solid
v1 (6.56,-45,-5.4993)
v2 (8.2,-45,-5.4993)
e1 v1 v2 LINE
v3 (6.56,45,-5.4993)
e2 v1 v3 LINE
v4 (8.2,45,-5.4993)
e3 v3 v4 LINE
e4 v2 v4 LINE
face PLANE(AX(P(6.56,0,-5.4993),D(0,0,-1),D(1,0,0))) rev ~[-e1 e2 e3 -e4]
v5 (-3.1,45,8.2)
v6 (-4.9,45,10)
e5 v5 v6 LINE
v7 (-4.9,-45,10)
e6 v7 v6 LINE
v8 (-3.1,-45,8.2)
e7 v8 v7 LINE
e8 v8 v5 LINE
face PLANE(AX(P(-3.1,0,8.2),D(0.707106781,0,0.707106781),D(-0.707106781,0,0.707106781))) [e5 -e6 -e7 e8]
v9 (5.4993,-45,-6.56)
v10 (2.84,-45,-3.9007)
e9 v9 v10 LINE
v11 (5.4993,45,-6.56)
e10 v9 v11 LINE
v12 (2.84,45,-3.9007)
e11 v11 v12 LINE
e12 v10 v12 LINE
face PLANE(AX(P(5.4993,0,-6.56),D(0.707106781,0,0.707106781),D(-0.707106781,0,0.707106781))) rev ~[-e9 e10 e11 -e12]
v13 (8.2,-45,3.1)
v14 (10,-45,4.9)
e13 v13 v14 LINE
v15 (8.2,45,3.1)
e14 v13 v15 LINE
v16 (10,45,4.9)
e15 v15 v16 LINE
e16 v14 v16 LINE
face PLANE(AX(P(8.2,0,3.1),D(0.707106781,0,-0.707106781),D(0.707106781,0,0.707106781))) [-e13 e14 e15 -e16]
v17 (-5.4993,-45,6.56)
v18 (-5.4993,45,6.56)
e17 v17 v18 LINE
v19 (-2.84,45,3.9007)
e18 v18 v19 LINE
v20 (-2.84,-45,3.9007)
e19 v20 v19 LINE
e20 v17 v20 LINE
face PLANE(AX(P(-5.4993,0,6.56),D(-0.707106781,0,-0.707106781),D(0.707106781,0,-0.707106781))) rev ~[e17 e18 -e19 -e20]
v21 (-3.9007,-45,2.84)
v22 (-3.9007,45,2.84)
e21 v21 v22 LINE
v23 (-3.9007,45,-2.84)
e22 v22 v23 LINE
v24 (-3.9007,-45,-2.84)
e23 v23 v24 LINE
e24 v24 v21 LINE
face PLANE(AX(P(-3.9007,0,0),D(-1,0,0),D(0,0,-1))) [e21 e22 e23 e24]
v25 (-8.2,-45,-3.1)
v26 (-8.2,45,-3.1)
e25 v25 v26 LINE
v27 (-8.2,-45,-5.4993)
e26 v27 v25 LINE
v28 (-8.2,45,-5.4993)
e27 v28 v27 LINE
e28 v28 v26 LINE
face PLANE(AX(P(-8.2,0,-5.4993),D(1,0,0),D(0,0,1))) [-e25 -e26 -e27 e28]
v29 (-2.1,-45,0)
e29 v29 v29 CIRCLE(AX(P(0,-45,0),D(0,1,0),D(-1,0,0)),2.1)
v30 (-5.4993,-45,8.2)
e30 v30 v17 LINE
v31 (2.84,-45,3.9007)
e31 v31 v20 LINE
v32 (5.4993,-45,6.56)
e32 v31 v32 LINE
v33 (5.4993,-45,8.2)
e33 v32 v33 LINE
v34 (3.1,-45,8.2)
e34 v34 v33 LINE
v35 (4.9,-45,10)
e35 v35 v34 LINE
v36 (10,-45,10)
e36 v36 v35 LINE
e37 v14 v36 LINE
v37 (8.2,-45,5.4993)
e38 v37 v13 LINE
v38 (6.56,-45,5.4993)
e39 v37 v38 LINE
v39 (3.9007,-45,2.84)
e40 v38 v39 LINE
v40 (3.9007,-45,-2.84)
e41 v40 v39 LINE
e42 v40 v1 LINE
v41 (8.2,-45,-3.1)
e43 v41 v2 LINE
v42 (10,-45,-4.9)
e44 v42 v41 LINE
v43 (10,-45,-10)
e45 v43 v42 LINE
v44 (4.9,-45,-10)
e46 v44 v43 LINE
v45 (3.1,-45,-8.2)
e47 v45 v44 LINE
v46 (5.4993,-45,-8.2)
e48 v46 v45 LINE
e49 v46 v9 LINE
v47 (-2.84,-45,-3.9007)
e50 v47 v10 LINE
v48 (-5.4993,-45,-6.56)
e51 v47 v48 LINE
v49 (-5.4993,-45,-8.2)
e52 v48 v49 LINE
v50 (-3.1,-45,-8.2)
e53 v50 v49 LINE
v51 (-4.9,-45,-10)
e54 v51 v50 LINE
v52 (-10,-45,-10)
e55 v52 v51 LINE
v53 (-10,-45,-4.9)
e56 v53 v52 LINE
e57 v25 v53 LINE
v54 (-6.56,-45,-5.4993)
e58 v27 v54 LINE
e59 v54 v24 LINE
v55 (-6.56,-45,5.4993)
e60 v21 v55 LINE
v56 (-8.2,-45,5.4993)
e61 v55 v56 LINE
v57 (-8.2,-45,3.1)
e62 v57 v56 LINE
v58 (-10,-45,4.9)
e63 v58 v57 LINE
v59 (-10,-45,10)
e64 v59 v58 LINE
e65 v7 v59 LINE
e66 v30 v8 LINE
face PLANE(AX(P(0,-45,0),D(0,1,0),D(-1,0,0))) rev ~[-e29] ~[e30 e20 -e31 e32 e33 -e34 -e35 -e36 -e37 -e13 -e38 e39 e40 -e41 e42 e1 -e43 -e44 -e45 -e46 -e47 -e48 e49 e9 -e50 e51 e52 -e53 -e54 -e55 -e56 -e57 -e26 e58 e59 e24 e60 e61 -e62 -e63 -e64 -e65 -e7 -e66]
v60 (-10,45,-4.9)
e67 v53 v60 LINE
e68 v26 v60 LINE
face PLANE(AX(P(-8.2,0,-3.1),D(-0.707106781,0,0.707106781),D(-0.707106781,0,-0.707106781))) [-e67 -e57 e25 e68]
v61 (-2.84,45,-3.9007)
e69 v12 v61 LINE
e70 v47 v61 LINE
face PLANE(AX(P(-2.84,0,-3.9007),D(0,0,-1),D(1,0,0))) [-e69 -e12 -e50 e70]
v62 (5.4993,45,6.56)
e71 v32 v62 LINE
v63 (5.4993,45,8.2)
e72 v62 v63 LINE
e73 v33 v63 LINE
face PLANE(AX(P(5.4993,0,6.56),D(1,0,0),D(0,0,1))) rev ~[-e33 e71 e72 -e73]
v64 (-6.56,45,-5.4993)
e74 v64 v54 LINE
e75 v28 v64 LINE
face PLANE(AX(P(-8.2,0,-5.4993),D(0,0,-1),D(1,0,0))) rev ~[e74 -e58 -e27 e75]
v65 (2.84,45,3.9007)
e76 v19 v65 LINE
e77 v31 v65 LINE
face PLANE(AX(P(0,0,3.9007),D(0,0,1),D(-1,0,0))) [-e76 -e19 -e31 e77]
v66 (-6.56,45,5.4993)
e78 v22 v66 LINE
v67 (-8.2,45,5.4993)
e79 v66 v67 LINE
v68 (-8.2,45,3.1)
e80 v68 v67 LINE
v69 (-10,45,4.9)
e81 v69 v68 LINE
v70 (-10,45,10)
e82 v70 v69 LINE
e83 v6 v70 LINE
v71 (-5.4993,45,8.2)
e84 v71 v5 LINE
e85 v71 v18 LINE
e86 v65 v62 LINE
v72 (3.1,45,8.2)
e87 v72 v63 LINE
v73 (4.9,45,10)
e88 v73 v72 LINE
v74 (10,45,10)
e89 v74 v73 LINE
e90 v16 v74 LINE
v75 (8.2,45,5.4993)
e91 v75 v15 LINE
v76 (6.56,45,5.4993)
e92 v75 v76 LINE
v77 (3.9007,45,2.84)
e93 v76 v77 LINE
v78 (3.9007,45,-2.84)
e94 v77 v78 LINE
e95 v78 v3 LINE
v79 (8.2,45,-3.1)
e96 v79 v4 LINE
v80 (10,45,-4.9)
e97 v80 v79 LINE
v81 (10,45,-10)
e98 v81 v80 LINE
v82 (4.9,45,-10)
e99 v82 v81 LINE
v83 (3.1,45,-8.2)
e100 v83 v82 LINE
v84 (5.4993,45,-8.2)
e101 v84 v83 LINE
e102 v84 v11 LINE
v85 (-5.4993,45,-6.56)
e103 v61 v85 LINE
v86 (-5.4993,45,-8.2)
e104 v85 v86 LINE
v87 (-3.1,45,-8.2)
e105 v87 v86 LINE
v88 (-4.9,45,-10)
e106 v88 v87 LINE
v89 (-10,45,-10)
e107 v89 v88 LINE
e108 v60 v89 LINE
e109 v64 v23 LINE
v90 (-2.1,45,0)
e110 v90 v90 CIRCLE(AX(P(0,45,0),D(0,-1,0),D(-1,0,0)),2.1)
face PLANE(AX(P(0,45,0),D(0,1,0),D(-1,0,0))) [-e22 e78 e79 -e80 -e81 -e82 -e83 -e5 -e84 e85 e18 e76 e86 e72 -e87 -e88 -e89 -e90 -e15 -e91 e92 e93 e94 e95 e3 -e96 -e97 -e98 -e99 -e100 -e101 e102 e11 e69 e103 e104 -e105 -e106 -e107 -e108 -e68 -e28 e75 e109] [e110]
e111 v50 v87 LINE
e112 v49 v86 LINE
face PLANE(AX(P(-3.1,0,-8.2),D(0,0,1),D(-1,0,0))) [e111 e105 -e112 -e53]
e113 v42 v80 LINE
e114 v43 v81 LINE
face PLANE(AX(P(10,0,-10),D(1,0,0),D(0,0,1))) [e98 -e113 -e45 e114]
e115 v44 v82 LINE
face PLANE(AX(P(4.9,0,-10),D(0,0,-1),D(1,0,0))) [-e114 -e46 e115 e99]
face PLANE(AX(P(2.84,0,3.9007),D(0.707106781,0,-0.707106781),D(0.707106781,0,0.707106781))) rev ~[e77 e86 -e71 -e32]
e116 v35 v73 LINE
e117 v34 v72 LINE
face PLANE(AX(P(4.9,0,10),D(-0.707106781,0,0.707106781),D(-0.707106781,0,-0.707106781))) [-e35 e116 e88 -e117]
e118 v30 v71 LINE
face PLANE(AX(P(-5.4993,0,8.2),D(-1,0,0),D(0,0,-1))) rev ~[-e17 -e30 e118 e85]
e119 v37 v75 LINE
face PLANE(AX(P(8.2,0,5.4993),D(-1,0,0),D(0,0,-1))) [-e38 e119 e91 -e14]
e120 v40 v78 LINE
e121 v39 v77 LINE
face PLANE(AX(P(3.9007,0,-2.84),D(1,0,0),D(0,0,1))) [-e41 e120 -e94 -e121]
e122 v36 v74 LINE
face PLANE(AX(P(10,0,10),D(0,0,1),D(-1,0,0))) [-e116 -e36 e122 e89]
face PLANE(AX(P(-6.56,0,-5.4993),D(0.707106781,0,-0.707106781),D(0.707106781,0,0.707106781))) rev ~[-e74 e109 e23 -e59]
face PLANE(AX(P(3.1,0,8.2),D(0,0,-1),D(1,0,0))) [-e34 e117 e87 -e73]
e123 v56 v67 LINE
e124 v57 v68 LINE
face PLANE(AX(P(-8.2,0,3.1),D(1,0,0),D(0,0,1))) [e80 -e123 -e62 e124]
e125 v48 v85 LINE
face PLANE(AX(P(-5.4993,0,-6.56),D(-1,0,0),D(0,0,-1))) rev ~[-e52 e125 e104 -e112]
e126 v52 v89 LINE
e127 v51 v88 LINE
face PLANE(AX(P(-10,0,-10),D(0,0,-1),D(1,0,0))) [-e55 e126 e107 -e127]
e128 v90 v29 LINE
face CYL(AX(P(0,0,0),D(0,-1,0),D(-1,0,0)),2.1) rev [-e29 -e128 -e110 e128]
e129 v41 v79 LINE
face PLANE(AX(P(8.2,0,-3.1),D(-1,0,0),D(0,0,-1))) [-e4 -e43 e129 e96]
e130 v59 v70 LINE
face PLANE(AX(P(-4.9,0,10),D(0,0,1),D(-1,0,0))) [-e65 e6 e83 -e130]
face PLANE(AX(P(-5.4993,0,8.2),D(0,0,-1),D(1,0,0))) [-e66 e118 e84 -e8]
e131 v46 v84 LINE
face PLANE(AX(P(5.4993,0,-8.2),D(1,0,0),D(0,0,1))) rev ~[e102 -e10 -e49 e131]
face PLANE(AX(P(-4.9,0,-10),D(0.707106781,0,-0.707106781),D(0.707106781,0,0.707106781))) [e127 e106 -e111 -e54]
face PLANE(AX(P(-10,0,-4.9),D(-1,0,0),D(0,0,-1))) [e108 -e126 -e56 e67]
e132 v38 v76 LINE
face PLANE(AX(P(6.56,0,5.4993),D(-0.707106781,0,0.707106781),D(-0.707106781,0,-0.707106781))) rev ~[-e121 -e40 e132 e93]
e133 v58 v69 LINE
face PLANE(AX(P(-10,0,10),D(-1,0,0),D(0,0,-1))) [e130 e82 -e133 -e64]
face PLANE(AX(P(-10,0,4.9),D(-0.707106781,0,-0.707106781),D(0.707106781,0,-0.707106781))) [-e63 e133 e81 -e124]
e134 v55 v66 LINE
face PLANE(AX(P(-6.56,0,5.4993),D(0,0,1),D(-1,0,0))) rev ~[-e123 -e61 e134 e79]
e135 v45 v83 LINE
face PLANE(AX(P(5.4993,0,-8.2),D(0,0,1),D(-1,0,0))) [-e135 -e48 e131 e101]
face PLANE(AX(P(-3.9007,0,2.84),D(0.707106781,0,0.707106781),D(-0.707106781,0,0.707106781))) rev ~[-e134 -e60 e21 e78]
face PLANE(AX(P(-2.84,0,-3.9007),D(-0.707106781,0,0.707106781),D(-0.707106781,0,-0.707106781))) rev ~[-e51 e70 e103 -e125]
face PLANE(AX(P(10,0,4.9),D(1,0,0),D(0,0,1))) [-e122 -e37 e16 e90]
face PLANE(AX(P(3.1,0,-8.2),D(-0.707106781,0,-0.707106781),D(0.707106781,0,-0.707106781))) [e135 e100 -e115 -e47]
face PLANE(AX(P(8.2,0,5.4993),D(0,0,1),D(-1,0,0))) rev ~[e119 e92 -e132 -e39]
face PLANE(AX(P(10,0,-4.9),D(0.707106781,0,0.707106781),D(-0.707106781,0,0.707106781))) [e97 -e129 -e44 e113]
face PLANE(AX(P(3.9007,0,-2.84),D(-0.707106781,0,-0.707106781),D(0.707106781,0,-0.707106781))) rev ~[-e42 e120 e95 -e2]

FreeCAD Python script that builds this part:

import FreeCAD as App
import Part
import Sketcher

V = App.Vector
Q = App.Units.Quantity

doc = App.newDocument("Part")
params = doc.addObject("Spreadsheet::Sheet", "Params")
for row, (alias, value) in enumerate([
    ("sketch1_diameter", "4.2 mm"),
    ("sketch1_width", "1.64 mm"),
    ("pad1_length", "90 mm"),
], start=1):
    params.set(f"A{row}", alias)
    params.set(f"B{row}", "=" + value)
    params.setAlias(f"B{row}", alias)

body = doc.addObject("PartDesign::Body", "Body")

# Sketch on XZ plane
sketch1 = body.newObject("Sketcher::SketchObject", "Sketch")
sketch1.AttachmentSupport = (doc.getObject("XZ_Plane"), [""])
sketch1.MapMode = "FlatFace"
sketch1.addGeometry([
    Part.LineSegment(V(-3.9, -2.8, 0), V(-3.9, 2.8, 0)),  # 0
    Part.LineSegment(V(-3.9, 2.8, 0), V(-6.6, 5.5, 0)),  # 1
    Part.LineSegment(V(-6.6, 5.5, 0), V(-8.2, 5.5, 0)),  # 2
    Part.LineSegment(V(-8.2, 5.5, 0), V(-8.2, 3.1, 0)),  # 3
    Part.LineSegment(V(-8.2, 3.1, 0), V(-10, 4.9, 0)),  # 4
    Part.LineSegment(V(-10, 4.9, 0), V(-10, 10, 0)),  # 5
    Part.LineSegment(V(-10, 10, 0), V(-4.9, 10, 0)),  # 6
    Part.LineSegment(V(-4.9, 10, 0), V(-3.1, 8.2, 0)),  # 7
    Part.LineSegment(V(-3.1, 8.2, 0), V(-5.5, 8.2, 0)),  # 8
    Part.LineSegment(V(-5.5, 8.2, 0), V(-5.5, 6.6, 0)),  # 9
    Part.LineSegment(V(-5.5, 6.6, 0), V(-2.8, 3.9, 0)),  # 10
    Part.LineSegment(V(-2.8, 3.9, 0), V(2.8, 3.9, 0)),  # 11
    Part.LineSegment(V(2.8, 3.9, 0), V(5.5, 6.6, 0)),  # 12
    Part.LineSegment(V(5.5, 6.6, 0), V(5.5, 8.2, 0)),  # 13
    Part.LineSegment(V(5.5, 8.2, 0), V(3.1, 8.2, 0)),  # 14
    Part.LineSegment(V(3.1, 8.2, 0), V(4.9, 10, 0)),  # 15
    Part.LineSegment(V(4.9, 10, 0), V(10, 10, 0)),  # 16
    Part.LineSegment(V(10, 10, 0), V(10, 4.9, 0)),  # 17
    Part.LineSegment(V(10, 4.9, 0), V(8.2, 3.1, 0)),  # 18
    Part.LineSegment(V(8.2, 3.1, 0), V(8.2, 5.5, 0)),  # 19
    Part.LineSegment(V(8.2, 5.5, 0), V(6.6, 5.5, 0)),  # 20
    Part.LineSegment(V(6.6, 5.5, 0), V(3.9, 2.8, 0)),  # 21
    Part.LineSegment(V(3.9, 2.8, 0), V(3.9, -2.8, 0)),  # 22
    Part.LineSegment(V(3.9, -2.8, 0), V(6.6, -5.5, 0)),  # 23
    Part.LineSegment(V(6.6, -5.5, 0), V(8.2, -5.5, 0)),  # 24
    Part.LineSegment(V(8.2, -5.5, 0), V(8.2, -3.1, 0)),  # 25
    Part.LineSegment(V(8.2, -3.1, 0), V(10, -4.9, 0)),  # 26
    Part.LineSegment(V(10, -4.9, 0), V(10, -10, 0)),  # 27
    Part.LineSegment(V(10, -10, 0), V(4.9, -10, 0)),  # 28
    Part.LineSegment(V(4.9, -10, 0), V(3.1, -8.2, 0)),  # 29
    Part.LineSegment(V(3.1, -8.2, 0), V(5.5, -8.2, 0)),  # 30
    Part.LineSegment(V(5.5, -8.2, 0), V(5.5, -6.6, 0)),  # 31
    Part.LineSegment(V(5.5, -6.6, 0), V(2.8, -3.9, 0)),  # 32
    Part.LineSegment(V(2.8, -3.9, 0), V(-2.8, -3.9, 0)),  # 33
    Part.LineSegment(V(-2.8, -3.9, 0), V(-5.5, -6.6, 0)),  # 34
    Part.LineSegment(V(-5.5, -6.6, 0), V(-5.5, -8.2, 0)),  # 35
    Part.LineSegment(V(-5.5, -8.2, 0), V(-3.1, -8.2, 0)),  # 36
    Part.LineSegment(V(-3.1, -8.2, 0), V(-4.9, -10, 0)),  # 37
    Part.LineSegment(V(-4.9, -10, 0), V(-10, -10, 0)),  # 38
    Part.LineSegment(V(-10, -10, 0), V(-10, -4.9, 0)),  # 39
    Part.LineSegment(V(-10, -4.9, 0), V(-8.2, -3.1, 0)),  # 40
    Part.LineSegment(V(-8.2, -3.1, 0), V(-8.2, -5.5, 0)),  # 41
    Part.LineSegment(V(-8.2, -5.5, 0), V(-6.6, -5.5, 0)),  # 42
    Part.LineSegment(V(-6.6, -5.5, 0), V(-3.9, -2.8, 0)),  # 43
    Part.Circle(V(0, 0, 0), V(0, 0, 1), 2.1),  # 44
], False)
sketch1.addConstraint([
    Sketcher.Constraint("Coincident", 0, 2, 1, 1),
    Sketcher.Constraint("Coincident", 1, 2, 2, 1),
    Sketcher.Constraint("Coincident", 2, 2, 3, 1),
    Sketcher.Constraint("Coincident", 3, 2, 4, 1),
    Sketcher.Constraint("Coincident", 4, 2, 5, 1),
    Sketcher.Constraint("Coincident", 5, 2, 6, 1),
    Sketcher.Constraint("Coincident", 6, 2, 7, 1),
    Sketcher.Constraint("Coincident", 7, 2, 8, 1),
    Sketcher.Constraint("Coincident", 8, 2, 9, 1),
    Sketcher.Constraint("Coincident", 9, 2, 10, 1),
    Sketcher.Constraint("Coincident", 10, 2, 11, 1),
    Sketcher.Constraint("Coincident", 11, 2, 12, 1),
    Sketcher.Constraint("Coincident", 12, 2, 13, 1),
    Sketcher.Constraint("Coincident", 13, 2, 14, 1),
    Sketcher.Constraint("Coincident", 14, 2, 15, 1),
    Sketcher.Constraint("Coincident", 15, 2, 16, 1),
    Sketcher.Constraint("Coincident", 16, 2, 17, 1),
    Sketcher.Constraint("Coincident", 17, 2, 18, 1),
    Sketcher.Constraint("Coincident", 18, 2, 19, 1),
    Sketcher.Constraint("Coincident", 19, 2, 20, 1),
    Sketcher.Constraint("Coincident", 20, 2, 21, 1),
    Sketcher.Constraint("Coincident", 21, 2, 22, 1),
    Sketcher.Constraint("Coincident", 22, 2, 23, 1),
    Sketcher.Constraint("Coincident", 23, 2, 24, 1),
    Sketcher.Constraint("Coincident", 24, 2, 25, 1),
    Sketcher.Constraint("Coincident", 25, 2, 26, 1),
    Sketcher.Constraint("Coincident", 26, 2, 27, 1),
    Sketcher.Constraint("Coincident", 27, 2, 28, 1),
    Sketcher.Constraint("Coincident", 28, 2, 29, 1),
    Sketcher.Constraint("Coincident", 29, 2, 30, 1),
    Sketcher.Constraint("Coincident", 30, 2, 31, 1),
    Sketcher.Constraint("Coincident", 31, 2, 32, 1),
    Sketcher.Constraint("Coincident", 32, 2, 33, 1),
    Sketcher.Constraint("Coincident", 33, 2, 34, 1),
    Sketcher.Constraint("Coincident", 34, 2, 35, 1),
    Sketcher.Constraint("Coincident", 35, 2, 36, 1),
    Sketcher.Constraint("Coincident", 36, 2, 37, 1),
    Sketcher.Constraint("Coincident", 37, 2, 38, 1),
    Sketcher.Constraint("Coincident", 38, 2, 39, 1),
    Sketcher.Constraint("Coincident", 39, 2, 40, 1),
    Sketcher.Constraint("Coincident", 40, 2, 41, 1),
    Sketcher.Constraint("Coincident", 41, 2, 42, 1),
    Sketcher.Constraint("Coincident", 42, 2, 43, 1),
    Sketcher.Constraint("Coincident", 43, 2, 0, 1),
    Sketcher.Constraint("Vertical", 0),
    Sketcher.Constraint("Horizontal", 2),
    Sketcher.Constraint("Vertical", 3),
    Sketcher.Constraint("Vertical", 5),
    Sketcher.Constraint("Horizontal", 6),
    Sketcher.Constraint("Horizontal", 8),
    Sketcher.Constraint("Vertical", 9),
    Sketcher.Constraint("Horizontal", 11),
    Sketcher.Constraint("Vertical", 13),
    Sketcher.Constraint("Horizontal", 14),
    Sketcher.Constraint("Horizontal", 16),
    Sketcher.Constraint("Vertical", 17),
    Sketcher.Constraint("Vertical", 19),
    Sketcher.Constraint("Horizontal", 20),
    Sketcher.Constraint("Vertical", 22),
    Sketcher.Constraint("Horizontal", 24),
    Sketcher.Constraint("Vertical", 25),
    Sketcher.Constraint("Vertical", 27),
    Sketcher.Constraint("Horizontal", 28),
    Sketcher.Constraint("Horizontal", 30),
    Sketcher.Constraint("Vertical", 31),
    Sketcher.Constraint("Horizontal", 33),
    Sketcher.Constraint("Vertical", 35),
    Sketcher.Constraint("Horizontal", 36),
    Sketcher.Constraint("Horizontal", 38),
    Sketcher.Constraint("Vertical", 39),
    Sketcher.Constraint("Vertical", 41),
    Sketcher.Constraint("Horizontal", 42),
    Sketcher.Constraint("Coincident", 44, 3, -1, 1),
    Sketcher.Constraint("Symmetric", 0, 2, 22, 2, -1, 1),
    Sketcher.Constraint("Symmetric", 1, 2, 23, 2, -1, 1),
    Sketcher.Constraint("Symmetric", 3, 2, 25, 2, -1, 1),
    Sketcher.Constraint("Symmetric", 4, 2, 26, 2, -1, 1),
    Sketcher.Constraint("Symmetric", 6, 2, 28, 2, -1, 1),
    Sketcher.Constraint("Symmetric", 7, 2, 29, 2, -1, 1),
    Sketcher.Constraint("Symmetric", 9, 2, 31, 2, -1, 1),
    Sketcher.Constraint("Symmetric", 10, 2, 32, 2, -1, 1),
    Sketcher.Constraint("Symmetric", 12, 2, 34, 2, -1, 1),
    Sketcher.Constraint("Symmetric", 14, 2, 36, 2, -1, 1),
    Sketcher.Constraint("Symmetric", 15, 2, 37, 2, -1, 1),
    Sketcher.Constraint("Symmetric", 17, 2, 39, 2, -1, 1),
    Sketcher.Constraint("Symmetric", 18, 2, 40, 2, -1, 1),
    Sketcher.Constraint("Symmetric", 20, 2, 42, 2, -1, 1),
    Sketcher.Constraint("Symmetric", 9, 2, 12, 2, -2),
    Sketcher.Constraint("Symmetric", 7, 2, 14, 2, -2),
    Sketcher.Constraint("Symmetric", 6, 2, 15, 2, -2),
    Sketcher.Constraint("Symmetric", 4, 2, 17, 2, -2),
    Sketcher.Constraint("Symmetric", 3, 2, 18, 2, -2),
    Sketcher.Constraint("Symmetric", 1, 2, 20, 2, -2),
    Sketcher.Constraint("Parallel", 1, 4),
    Sketcher.Constraint("Parallel", 4, 7),
    Sketcher.Constraint("Parallel", 7, 10),
    Sketcher.Constraint("Perpendicular", 10, 12),
    Sketcher.Constraint("Parallel", 12, 15),
    Sketcher.Constraint("Parallel", 18, 21),
    Sketcher.Constraint("Perpendicular", 32, 34),
    Sketcher.Constraint("Parallel", 40, 43),
    Sketcher.Constraint("Equal", 33, 0),
    Sketcher.Constraint("Equal", 36, 3),
    Sketcher.Constraint("Equal", 38, 5),
    Sketcher.Constraint("Equal", 42, 9),
    Sketcher.Constraint("Equal", 4, 7),
    Sketcher.Constraint("Equal", 1, 10),
    Sketcher.Constraint("Diameter", 44, Q("4.2 mm")),
    Sketcher.Constraint("DistanceX", 4, 2, -1, 1, Q("10 mm")),
    Sketcher.Constraint("DistanceX", 2, 2, 2, 1, Q("1.64 mm")),
    Sketcher.Constraint("DistanceY", -1, 1, 3, 2, Q("3.1 mm")),
    Sketcher.Constraint("DistanceX", 4, 2, 2, 2, Q("1.8 mm")),
    Sketcher.Constraint("DistanceY", -1, 1, 0, 2, Q("2.84 mm")),
    Sketcher.Constraint("DistanceX", 8, 2, 8, 1, Q("2.3993 mm")),
])
sketch1.setExpression("Constraints[107]", "Params.sketch1_diameter")
sketch1.setExpression("Constraints[109]", "Params.sketch1_width")
pad1 = body.newObject("PartDesign::Pad", "Pad")
pad1.Profile = sketch1
pad1.setExpression("Length", "Params.pad1_length")
pad1.Midplane = True

doc.recompute()
